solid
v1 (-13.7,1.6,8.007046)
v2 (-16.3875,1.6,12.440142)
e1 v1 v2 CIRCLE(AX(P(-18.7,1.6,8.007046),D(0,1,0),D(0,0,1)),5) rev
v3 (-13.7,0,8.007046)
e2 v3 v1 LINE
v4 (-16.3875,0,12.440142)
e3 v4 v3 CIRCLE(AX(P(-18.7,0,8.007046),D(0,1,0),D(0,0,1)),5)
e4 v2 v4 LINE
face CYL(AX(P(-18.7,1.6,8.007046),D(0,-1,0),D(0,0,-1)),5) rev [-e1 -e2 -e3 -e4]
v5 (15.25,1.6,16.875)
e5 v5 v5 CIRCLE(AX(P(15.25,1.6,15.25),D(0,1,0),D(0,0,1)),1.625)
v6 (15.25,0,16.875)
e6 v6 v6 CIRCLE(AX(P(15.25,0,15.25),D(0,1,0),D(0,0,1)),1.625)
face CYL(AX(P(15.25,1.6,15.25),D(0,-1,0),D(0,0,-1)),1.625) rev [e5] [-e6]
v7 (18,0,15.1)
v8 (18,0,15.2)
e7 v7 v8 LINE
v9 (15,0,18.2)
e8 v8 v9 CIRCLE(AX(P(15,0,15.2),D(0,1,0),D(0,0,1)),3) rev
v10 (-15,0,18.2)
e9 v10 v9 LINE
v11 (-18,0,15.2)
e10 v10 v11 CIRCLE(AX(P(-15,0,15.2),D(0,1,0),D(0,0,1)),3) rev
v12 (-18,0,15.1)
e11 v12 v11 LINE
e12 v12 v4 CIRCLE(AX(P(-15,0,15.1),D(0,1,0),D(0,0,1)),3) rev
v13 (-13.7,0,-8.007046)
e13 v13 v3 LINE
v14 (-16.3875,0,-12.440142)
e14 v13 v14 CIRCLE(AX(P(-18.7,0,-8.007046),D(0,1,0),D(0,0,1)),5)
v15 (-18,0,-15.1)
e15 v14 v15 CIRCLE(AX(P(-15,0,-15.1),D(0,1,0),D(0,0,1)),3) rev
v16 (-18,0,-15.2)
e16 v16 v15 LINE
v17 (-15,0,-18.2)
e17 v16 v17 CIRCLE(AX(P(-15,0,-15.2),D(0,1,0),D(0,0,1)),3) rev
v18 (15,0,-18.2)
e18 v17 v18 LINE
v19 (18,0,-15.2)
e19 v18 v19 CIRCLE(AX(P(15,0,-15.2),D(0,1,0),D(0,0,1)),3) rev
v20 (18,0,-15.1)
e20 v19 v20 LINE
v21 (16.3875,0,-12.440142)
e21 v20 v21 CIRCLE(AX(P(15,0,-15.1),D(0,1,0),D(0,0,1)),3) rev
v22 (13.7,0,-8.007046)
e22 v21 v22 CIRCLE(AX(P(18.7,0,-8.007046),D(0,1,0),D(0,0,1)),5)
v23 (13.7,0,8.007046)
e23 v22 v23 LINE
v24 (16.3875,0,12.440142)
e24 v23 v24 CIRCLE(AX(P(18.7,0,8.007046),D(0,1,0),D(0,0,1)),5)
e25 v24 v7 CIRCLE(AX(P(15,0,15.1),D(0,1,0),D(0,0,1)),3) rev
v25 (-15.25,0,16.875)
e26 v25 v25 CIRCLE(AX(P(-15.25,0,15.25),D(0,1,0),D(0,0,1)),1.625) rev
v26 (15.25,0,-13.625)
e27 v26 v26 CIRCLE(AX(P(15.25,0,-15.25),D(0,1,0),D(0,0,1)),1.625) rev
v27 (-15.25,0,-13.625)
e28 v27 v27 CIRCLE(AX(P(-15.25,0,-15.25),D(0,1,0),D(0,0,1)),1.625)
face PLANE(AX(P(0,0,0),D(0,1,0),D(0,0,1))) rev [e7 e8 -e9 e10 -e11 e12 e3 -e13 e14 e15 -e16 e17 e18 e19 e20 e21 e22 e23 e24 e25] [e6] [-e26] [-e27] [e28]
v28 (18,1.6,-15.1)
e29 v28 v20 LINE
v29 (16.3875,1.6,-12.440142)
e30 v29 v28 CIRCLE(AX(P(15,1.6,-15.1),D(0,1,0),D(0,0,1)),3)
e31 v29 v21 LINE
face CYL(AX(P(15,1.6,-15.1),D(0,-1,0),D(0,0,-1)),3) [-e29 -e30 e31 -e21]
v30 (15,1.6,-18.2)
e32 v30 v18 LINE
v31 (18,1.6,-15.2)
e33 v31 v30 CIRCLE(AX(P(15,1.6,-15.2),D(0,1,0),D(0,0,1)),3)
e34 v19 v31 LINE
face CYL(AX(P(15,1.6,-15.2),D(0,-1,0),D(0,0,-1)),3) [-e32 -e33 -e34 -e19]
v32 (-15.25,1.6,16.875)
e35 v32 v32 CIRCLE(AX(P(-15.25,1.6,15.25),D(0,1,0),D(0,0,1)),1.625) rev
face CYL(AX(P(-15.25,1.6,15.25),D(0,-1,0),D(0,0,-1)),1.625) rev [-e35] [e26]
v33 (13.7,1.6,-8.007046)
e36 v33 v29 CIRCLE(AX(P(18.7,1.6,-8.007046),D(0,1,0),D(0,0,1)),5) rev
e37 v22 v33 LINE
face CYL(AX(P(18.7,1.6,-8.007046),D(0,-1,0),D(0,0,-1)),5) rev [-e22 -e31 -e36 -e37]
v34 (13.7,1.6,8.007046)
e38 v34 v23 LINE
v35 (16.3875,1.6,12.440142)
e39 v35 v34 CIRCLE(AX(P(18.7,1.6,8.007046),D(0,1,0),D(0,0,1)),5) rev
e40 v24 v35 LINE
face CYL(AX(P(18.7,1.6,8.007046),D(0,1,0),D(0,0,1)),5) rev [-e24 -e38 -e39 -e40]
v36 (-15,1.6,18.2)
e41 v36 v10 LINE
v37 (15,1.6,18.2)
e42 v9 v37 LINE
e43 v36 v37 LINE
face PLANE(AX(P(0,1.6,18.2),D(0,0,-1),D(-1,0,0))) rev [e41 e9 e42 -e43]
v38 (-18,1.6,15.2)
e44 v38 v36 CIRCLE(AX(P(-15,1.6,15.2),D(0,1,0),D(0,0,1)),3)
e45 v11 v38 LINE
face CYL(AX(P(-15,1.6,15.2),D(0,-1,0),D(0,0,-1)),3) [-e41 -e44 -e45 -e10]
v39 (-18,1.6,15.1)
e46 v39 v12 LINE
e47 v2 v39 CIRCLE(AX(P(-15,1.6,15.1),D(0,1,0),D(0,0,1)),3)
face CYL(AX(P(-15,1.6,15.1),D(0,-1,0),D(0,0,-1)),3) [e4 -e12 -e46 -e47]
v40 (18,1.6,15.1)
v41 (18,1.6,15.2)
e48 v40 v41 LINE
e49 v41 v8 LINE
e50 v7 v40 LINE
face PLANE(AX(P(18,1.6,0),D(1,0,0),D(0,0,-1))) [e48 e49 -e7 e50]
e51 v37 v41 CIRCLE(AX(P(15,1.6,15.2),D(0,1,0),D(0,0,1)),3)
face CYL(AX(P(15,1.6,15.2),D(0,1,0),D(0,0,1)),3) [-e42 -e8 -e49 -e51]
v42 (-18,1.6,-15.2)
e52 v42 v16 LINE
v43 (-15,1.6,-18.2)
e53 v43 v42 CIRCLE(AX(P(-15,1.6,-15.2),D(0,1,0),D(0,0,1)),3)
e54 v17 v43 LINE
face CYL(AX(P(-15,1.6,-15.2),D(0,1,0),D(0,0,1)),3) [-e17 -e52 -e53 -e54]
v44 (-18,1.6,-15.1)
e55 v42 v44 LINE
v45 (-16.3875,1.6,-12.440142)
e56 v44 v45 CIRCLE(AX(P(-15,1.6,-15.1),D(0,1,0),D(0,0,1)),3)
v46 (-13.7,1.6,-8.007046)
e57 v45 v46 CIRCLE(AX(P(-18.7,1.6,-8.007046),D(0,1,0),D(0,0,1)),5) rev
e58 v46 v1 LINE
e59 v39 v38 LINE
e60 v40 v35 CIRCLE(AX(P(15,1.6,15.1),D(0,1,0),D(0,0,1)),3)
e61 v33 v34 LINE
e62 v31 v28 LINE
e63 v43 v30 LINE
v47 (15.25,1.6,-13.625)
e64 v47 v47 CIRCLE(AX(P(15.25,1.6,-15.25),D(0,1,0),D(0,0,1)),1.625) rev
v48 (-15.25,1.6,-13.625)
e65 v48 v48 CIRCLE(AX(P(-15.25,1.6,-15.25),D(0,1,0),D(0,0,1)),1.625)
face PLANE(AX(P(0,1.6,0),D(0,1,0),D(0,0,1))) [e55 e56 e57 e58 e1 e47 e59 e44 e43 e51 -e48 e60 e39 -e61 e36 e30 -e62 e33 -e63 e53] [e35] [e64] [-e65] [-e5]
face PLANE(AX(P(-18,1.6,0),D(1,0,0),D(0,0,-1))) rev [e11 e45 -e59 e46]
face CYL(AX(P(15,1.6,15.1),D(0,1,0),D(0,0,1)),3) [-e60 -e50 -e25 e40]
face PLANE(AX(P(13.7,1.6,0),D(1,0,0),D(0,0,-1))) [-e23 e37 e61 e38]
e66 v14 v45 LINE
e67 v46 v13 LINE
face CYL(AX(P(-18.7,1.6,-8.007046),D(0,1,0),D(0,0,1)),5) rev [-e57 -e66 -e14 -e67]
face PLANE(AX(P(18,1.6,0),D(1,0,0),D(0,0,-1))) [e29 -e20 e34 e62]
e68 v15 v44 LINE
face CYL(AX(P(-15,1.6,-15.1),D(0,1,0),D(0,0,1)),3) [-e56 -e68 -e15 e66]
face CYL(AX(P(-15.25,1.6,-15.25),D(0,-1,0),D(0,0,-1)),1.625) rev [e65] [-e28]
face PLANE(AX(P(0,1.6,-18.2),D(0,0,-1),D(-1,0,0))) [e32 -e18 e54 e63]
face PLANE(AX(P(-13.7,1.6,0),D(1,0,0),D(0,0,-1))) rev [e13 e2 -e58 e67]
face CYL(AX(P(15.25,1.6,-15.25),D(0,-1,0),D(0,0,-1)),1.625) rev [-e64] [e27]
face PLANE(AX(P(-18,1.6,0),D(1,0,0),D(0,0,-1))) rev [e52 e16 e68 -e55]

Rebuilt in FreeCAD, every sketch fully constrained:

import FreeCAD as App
import Part
import Sketcher


def edges_at(feature, points):
    """Names of the edges that pass closest to the given points."""
    edges = feature.Shape.Edges
    near = lambda p: min(range(len(edges)), key=lambda i: edges[i].distToShape(Part.Vertex(*p))[0])
    return sorted({f"Edge{near(p) + 1}" for p in points})

doc = App.newDocument("Part")
body = doc.addObject("PartDesign::Body", "Body")

sketch1 = body.newObject("Sketcher::SketchObject", "Sketch")
sketch1.AttachmentSupport = (doc.getObject("XZ_Plane"), [""])
sketch1.MapMode = "FlatFace"
sketch1.addGeometry(Part.LineSegment(App.Vector(-18, -18.2, 0), App.Vector(-18, -12.1, 0)), False)
sketch1.addGeometry(Part.LineSegment(App.Vector(-18, -12.1, 0), App.Vector(-13.7, -12.1, 0)), False)
sketch1.addGeometry(Part.LineSegment(App.Vector(-13.7, -12.1, 0), App.Vector(-13.7, 12.1, 0)), False)
sketch1.addGeometry(Part.LineSegment(App.Vector(-13.7, 12.1, 0), App.Vector(-18, 12.1, 0)), False)
sketch1.addGeometry(Part.LineSegment(App.Vector(-18, 12.1, 0), App.Vector(-18, 18.2, 0)), False)
sketch1.addGeometry(Part.LineSegment(App.Vector(-18, 18.2, 0), App.Vector(18, 18.2, 0)), False)
sketch1.addGeometry(Part.LineSegment(App.Vector(18, 18.2, 0), App.Vector(18, 12.1, 0)), False)
sketch1.addGeometry(Part.LineSegment(App.Vector(18, 12.1, 0), App.Vector(13.7, 12.1, 0)), False)
sketch1.addGeometry(Part.LineSegment(App.Vector(13.7, 12.1, 0), App.Vector(13.7, -12.1, 0)), False)
sketch1.addGeometry(Part.LineSegment(App.Vector(13.7, -12.1, 0), App.Vector(18, -12.1, 0)), False)
sketch1.addGeometry(Part.LineSegment(App.Vector(18, -12.1, 0), App.Vector(18, -18.2, 0)), False)
sketch1.addGeometry(Part.LineSegment(App.Vector(18, -18.2, 0), App.Vector(-18, -18.2, 0)), False)
sketch1.addGeometry(Part.Circle(App.Vector(-15.2, 15.2, 0), App.Vector(0, 0, 1), 1.6), False)
sketch1.addGeometry(Part.Circle(App.Vector(15.2, 15.2, 0), App.Vector(0, 0, 1), 1.6), False)
sketch1.addGeometry(Part.Circle(App.Vector(-15.2, -15.2, 0), App.Vector(0, 0, 1), 1.6), False)
sketch1.addGeometry(Part.Circle(App.Vector(15.2, -15.2, 0), App.Vector(0, 0, 1), 1.6), False)
sketch1.addConstraint(Sketcher.Constraint("Coincident", 0, 2, 1, 1))
sketch1.addConstraint(Sketcher.Constraint("Coincident", 1, 2, 2, 1))
sketch1.addConstraint(Sketcher.Constraint("Coincident", 2, 2, 3, 1))
sketch1.addConstraint(Sketcher.Constraint("Coincident", 3, 2, 4, 1))
sketch1.addConstraint(Sketcher.Constraint("Coincident", 4, 2, 5, 1))
sketch1.addConstraint(Sketcher.Constraint("Coincident", 5, 2, 6, 1))
sketch1.addConstraint(Sketcher.Constraint("Coincident", 6, 2, 7, 1))
sketch1.addConstraint(Sketcher.Constraint("Coincident", 7, 2, 8, 1))
sketch1.addConstraint(Sketcher.Constraint("Coincident", 8, 2, 9, 1))
sketch1.addConstraint(Sketcher.Constraint("Coincident", 9, 2, 10, 1))
sketch1.addConstraint(Sketcher.Constraint("Coincident", 10, 2, 11, 1))
sketch1.addConstraint(Sketcher.Constraint("Coincident", 11, 2, 0, 1))
sketch1.addConstraint(Sketcher.Constraint("Vertical", 0))
sketch1.addConstraint(Sketcher.Constraint("Horizontal", 1))
sketch1.addConstraint(Sketcher.Constraint("Vertical", 2))
sketch1.addConstraint(Sketcher.Constraint("Horizontal", 3))
sketch1.addConstraint(Sketcher.Constraint("Vertical", 4))
sketch1.addConstraint(Sketcher.Constraint("Horizontal", 5))
sketch1.addConstraint(Sketcher.Constraint("Vertical", 6))
sketch1.addConstraint(Sketcher.Constraint("Horizontal", 7))
sketch1.addConstraint(Sketcher.Constraint("Vertical", 8))
sketch1.addConstraint(Sketcher.Constraint("Horizontal", 9))
sketch1.addConstraint(Sketcher.Constraint("Vertical", 10))
sketch1.addConstraint(Sketcher.Constraint("Horizontal", 11))
sketch1.addConstraint(Sketcher.Constraint("Equal", 12, 13))
sketch1.addConstraint(Sketcher.Constraint("Equal", 13, 14))
sketch1.addConstraint(Sketcher.Constraint("Equal", 14, 15))
sketch1.addConstraint(Sketcher.Constraint("Symmetric", 13, 3, 14, 3, -1, 1))
sketch1.addConstraint(Sketcher.Constraint("Symmetric", 12, 3, 15, 3, -1, 1))
sketch1.addConstraint(Sketcher.Constraint("Symmetric", 0, 2, 6, 2, -1, 1))
sketch1.addConstraint(Sketcher.Constraint("Symmetric", 2, 2, 8, 2, -1, 1))
sketch1.addConstraint(Sketcher.Constraint("Symmetric", 4, 2, 10, 2, -1, 1))
sketch1.addConstraint(Sketcher.Constraint("Symmetric", 12, 3, 13, 3, -2))
sketch1.addConstraint(Sketcher.Constraint("Symmetric", 3, 2, 6, 2, -2))
sketch1.addConstraint(Sketcher.Constraint("Diameter", 12, 3.25))
sketch1.addConstraint(Sketcher.Constraint("DistanceX", 5, 1, 5, 2, 36.0))
sketch1.addConstraint(Sketcher.Constraint("DistanceX", 1, 1, 1, 2, 4.3))
sketch1.addConstraint(Sketcher.Constraint("DistanceY", 0, 1, 0, 2, 6.1))
sketch1.addConstraint(Sketcher.Constraint("DistanceY", 2, 1, 2, 2, 24.2))
sketch1.addConstraint(Sketcher.Constraint("DistanceX", 12, 3, 13, 3, 30.5))
sketch1.addConstraint(Sketcher.Constraint("DistanceY", 14, 3, 12, 3, 30.5))
pad1 = body.newObject("PartDesign::Pad", "Pad")
pad1.Profile = sketch1
pad1.Length = 1.6
pad1.Reversed = True
doc.recompute()

fillet = body.newObject("PartDesign::Fillet", "Fillet")
fillet.Base = (pad1, edges_at(pad1, [
    (-18, 0.8, 18.2),
    (-18, 0.8, 12.1),
    (-18, 0.8, -12.1),
    (-18, 0.8, -18.2),
    (18, 0.8, -18.2),
    (18, 0.8, -12.1),
    (18, 0.8, 12.1),
    (18, 0.8, 18.2),
]))
fillet.Radius = 3
doc.recompute()

fillet2 = body.newObject("PartDesign::Fillet", "Fillet001")
fillet2.Base = (fillet, edges_at(fillet, [
    (13.7, 0.8, -12.1),
    (13.7, 0.8, 12.1),
    (-13.7, 0.8, 12.1),
    (-13.7, 0.8, -12.1),
]))
fillet2.Radius = 5

doc.recompute()
